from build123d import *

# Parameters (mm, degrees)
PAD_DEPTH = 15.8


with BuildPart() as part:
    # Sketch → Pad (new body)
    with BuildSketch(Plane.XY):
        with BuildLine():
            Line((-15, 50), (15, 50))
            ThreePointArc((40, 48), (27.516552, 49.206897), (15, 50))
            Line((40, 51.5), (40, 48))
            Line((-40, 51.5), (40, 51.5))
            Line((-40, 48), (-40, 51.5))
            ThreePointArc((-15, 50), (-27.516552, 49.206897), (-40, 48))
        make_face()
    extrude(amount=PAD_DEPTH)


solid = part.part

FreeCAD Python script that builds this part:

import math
import FreeCAD as App
import Part
import Sketcher
from FreeCAD import Vector

doc = App.newDocument("Part")
params = doc.addObject("Spreadsheet::Sheet", "Params")
for row, (alias, value) in enumerate([
    ("sketch1_width", "30 mm"),
    ("sketch1_width2", "80 mm"),
    ("sketch1_height", "3.5 mm"),
    ("pad1_length", "15.8 mm"),
], start=1):
    params.set(f"A{row}", alias)
    params.set(f"B{row}", "=" + value)
    params.setAlias(f"B{row}", alias)

body = doc.addObject("PartDesign::Body", "Body")

# Sketch on XY plane
sketch1 = body.newObject("Sketcher::SketchObject", "Sketch")
sketch1.AttachmentSupport = (doc.getObject("XY_Plane"), [""])
sketch1.MapMode = "FlatFace"
sketch1.addGeometry(Part.LineSegment(Vector(-15, 50, 0), Vector(15, 50, 0)), False)
sketch1.addGeometry(Part.ArcOfCircle(Part.Circle(Vector(-2.7, -328.5, 0), Vector(0, 0, 1), 378.9), math.radians(83.53), math.radians(87.32)), False)
sketch1.addGeometry(Part.LineSegment(Vector(40, 48, 0), Vector(40, 51.5, 0)), False)
sketch1.addGeometry(Part.LineSegment(Vector(40, 51.5, 0), Vector(-40, 51.5, 0)), False)
sketch1.addGeometry(Part.LineSegment(Vector(-40, 51.5, 0), Vector(-40, 48, 0)), False)
sketch1.addGeometry(Part.ArcOfCircle(Part.Circle(Vector(2.7, -328.5, 0), Vector(0, 0, 1), 378.9), math.radians(92.68), math.radians(96.47)), False)
sketch1.addConstraint(Sketcher.Constraint("Coincident", 0, 2, 1, 2))
sketch1.addConstraint(Sketcher.Constraint("Coincident", 1, 1, 2, 1))
sketch1.addConstraint(Sketcher.Constraint("Coincident", 2, 2, 3, 1))
sketch1.addConstraint(Sketcher.Constraint("Coincident", 3, 2, 4, 1))
sketch1.addConstraint(Sketcher.Constraint("Coincident", 4, 2, 5, 2))
sketch1.addConstraint(Sketcher.Constraint("Coincident", 5, 1, 0, 1))
sketch1.addConstraint(Sketcher.Constraint("Horizontal", 0))
sketch1.addConstraint(Sketcher.Constraint("Vertical", 2))
sketch1.addConstraint(Sketcher.Constraint("Horizontal", 3))
sketch1.addConstraint(Sketcher.Constraint("Vertical", 4))
sketch1.addConstraint(Sketcher.Constraint("Equal", 1, 5))
sketch1.addConstraint(Sketcher.Constraint("Symmetric", 1, 3, 5, 3, -2))
sketch1.addConstraint(Sketcher.Constraint("Horizontal", 1, 1, 4, 2))
sketch1.addConstraint(Sketcher.Constraint("DistanceX", 0, 1, 0, 2, 30.0))
sketch1.addConstraint(Sketcher.Constraint("DistanceX", 3, 2, 3, 1, 80.0))
sketch1.addConstraint(Sketcher.Constraint("DistanceY", 2, 1, 2, 2, 3.5))
sketch1.addConstraint(Sketcher.Constraint("DistanceY", -1, 1, 0, 2, 50.0))
sketch1.addConstraint(Sketcher.Constraint("DistanceY", -1, 1, 4, 2, 48.0))
sketch1.addConstraint(Sketcher.Constraint("Radius", 1, 378.913496))
sketch1.setExpression("Constraints[13]", "Params.sketch1_width")
sketch1.setExpression("Constraints[14]", "Params.sketch1_width2")
sketch1.setExpression("Constraints[15]", "Params.sketch1_height")
pad1 = body.newObject("PartDesign::Pad", "Pad")
pad1.Profile = sketch1
pad1.setExpression("Length", "Params.pad1_length")

doc.recompute()
